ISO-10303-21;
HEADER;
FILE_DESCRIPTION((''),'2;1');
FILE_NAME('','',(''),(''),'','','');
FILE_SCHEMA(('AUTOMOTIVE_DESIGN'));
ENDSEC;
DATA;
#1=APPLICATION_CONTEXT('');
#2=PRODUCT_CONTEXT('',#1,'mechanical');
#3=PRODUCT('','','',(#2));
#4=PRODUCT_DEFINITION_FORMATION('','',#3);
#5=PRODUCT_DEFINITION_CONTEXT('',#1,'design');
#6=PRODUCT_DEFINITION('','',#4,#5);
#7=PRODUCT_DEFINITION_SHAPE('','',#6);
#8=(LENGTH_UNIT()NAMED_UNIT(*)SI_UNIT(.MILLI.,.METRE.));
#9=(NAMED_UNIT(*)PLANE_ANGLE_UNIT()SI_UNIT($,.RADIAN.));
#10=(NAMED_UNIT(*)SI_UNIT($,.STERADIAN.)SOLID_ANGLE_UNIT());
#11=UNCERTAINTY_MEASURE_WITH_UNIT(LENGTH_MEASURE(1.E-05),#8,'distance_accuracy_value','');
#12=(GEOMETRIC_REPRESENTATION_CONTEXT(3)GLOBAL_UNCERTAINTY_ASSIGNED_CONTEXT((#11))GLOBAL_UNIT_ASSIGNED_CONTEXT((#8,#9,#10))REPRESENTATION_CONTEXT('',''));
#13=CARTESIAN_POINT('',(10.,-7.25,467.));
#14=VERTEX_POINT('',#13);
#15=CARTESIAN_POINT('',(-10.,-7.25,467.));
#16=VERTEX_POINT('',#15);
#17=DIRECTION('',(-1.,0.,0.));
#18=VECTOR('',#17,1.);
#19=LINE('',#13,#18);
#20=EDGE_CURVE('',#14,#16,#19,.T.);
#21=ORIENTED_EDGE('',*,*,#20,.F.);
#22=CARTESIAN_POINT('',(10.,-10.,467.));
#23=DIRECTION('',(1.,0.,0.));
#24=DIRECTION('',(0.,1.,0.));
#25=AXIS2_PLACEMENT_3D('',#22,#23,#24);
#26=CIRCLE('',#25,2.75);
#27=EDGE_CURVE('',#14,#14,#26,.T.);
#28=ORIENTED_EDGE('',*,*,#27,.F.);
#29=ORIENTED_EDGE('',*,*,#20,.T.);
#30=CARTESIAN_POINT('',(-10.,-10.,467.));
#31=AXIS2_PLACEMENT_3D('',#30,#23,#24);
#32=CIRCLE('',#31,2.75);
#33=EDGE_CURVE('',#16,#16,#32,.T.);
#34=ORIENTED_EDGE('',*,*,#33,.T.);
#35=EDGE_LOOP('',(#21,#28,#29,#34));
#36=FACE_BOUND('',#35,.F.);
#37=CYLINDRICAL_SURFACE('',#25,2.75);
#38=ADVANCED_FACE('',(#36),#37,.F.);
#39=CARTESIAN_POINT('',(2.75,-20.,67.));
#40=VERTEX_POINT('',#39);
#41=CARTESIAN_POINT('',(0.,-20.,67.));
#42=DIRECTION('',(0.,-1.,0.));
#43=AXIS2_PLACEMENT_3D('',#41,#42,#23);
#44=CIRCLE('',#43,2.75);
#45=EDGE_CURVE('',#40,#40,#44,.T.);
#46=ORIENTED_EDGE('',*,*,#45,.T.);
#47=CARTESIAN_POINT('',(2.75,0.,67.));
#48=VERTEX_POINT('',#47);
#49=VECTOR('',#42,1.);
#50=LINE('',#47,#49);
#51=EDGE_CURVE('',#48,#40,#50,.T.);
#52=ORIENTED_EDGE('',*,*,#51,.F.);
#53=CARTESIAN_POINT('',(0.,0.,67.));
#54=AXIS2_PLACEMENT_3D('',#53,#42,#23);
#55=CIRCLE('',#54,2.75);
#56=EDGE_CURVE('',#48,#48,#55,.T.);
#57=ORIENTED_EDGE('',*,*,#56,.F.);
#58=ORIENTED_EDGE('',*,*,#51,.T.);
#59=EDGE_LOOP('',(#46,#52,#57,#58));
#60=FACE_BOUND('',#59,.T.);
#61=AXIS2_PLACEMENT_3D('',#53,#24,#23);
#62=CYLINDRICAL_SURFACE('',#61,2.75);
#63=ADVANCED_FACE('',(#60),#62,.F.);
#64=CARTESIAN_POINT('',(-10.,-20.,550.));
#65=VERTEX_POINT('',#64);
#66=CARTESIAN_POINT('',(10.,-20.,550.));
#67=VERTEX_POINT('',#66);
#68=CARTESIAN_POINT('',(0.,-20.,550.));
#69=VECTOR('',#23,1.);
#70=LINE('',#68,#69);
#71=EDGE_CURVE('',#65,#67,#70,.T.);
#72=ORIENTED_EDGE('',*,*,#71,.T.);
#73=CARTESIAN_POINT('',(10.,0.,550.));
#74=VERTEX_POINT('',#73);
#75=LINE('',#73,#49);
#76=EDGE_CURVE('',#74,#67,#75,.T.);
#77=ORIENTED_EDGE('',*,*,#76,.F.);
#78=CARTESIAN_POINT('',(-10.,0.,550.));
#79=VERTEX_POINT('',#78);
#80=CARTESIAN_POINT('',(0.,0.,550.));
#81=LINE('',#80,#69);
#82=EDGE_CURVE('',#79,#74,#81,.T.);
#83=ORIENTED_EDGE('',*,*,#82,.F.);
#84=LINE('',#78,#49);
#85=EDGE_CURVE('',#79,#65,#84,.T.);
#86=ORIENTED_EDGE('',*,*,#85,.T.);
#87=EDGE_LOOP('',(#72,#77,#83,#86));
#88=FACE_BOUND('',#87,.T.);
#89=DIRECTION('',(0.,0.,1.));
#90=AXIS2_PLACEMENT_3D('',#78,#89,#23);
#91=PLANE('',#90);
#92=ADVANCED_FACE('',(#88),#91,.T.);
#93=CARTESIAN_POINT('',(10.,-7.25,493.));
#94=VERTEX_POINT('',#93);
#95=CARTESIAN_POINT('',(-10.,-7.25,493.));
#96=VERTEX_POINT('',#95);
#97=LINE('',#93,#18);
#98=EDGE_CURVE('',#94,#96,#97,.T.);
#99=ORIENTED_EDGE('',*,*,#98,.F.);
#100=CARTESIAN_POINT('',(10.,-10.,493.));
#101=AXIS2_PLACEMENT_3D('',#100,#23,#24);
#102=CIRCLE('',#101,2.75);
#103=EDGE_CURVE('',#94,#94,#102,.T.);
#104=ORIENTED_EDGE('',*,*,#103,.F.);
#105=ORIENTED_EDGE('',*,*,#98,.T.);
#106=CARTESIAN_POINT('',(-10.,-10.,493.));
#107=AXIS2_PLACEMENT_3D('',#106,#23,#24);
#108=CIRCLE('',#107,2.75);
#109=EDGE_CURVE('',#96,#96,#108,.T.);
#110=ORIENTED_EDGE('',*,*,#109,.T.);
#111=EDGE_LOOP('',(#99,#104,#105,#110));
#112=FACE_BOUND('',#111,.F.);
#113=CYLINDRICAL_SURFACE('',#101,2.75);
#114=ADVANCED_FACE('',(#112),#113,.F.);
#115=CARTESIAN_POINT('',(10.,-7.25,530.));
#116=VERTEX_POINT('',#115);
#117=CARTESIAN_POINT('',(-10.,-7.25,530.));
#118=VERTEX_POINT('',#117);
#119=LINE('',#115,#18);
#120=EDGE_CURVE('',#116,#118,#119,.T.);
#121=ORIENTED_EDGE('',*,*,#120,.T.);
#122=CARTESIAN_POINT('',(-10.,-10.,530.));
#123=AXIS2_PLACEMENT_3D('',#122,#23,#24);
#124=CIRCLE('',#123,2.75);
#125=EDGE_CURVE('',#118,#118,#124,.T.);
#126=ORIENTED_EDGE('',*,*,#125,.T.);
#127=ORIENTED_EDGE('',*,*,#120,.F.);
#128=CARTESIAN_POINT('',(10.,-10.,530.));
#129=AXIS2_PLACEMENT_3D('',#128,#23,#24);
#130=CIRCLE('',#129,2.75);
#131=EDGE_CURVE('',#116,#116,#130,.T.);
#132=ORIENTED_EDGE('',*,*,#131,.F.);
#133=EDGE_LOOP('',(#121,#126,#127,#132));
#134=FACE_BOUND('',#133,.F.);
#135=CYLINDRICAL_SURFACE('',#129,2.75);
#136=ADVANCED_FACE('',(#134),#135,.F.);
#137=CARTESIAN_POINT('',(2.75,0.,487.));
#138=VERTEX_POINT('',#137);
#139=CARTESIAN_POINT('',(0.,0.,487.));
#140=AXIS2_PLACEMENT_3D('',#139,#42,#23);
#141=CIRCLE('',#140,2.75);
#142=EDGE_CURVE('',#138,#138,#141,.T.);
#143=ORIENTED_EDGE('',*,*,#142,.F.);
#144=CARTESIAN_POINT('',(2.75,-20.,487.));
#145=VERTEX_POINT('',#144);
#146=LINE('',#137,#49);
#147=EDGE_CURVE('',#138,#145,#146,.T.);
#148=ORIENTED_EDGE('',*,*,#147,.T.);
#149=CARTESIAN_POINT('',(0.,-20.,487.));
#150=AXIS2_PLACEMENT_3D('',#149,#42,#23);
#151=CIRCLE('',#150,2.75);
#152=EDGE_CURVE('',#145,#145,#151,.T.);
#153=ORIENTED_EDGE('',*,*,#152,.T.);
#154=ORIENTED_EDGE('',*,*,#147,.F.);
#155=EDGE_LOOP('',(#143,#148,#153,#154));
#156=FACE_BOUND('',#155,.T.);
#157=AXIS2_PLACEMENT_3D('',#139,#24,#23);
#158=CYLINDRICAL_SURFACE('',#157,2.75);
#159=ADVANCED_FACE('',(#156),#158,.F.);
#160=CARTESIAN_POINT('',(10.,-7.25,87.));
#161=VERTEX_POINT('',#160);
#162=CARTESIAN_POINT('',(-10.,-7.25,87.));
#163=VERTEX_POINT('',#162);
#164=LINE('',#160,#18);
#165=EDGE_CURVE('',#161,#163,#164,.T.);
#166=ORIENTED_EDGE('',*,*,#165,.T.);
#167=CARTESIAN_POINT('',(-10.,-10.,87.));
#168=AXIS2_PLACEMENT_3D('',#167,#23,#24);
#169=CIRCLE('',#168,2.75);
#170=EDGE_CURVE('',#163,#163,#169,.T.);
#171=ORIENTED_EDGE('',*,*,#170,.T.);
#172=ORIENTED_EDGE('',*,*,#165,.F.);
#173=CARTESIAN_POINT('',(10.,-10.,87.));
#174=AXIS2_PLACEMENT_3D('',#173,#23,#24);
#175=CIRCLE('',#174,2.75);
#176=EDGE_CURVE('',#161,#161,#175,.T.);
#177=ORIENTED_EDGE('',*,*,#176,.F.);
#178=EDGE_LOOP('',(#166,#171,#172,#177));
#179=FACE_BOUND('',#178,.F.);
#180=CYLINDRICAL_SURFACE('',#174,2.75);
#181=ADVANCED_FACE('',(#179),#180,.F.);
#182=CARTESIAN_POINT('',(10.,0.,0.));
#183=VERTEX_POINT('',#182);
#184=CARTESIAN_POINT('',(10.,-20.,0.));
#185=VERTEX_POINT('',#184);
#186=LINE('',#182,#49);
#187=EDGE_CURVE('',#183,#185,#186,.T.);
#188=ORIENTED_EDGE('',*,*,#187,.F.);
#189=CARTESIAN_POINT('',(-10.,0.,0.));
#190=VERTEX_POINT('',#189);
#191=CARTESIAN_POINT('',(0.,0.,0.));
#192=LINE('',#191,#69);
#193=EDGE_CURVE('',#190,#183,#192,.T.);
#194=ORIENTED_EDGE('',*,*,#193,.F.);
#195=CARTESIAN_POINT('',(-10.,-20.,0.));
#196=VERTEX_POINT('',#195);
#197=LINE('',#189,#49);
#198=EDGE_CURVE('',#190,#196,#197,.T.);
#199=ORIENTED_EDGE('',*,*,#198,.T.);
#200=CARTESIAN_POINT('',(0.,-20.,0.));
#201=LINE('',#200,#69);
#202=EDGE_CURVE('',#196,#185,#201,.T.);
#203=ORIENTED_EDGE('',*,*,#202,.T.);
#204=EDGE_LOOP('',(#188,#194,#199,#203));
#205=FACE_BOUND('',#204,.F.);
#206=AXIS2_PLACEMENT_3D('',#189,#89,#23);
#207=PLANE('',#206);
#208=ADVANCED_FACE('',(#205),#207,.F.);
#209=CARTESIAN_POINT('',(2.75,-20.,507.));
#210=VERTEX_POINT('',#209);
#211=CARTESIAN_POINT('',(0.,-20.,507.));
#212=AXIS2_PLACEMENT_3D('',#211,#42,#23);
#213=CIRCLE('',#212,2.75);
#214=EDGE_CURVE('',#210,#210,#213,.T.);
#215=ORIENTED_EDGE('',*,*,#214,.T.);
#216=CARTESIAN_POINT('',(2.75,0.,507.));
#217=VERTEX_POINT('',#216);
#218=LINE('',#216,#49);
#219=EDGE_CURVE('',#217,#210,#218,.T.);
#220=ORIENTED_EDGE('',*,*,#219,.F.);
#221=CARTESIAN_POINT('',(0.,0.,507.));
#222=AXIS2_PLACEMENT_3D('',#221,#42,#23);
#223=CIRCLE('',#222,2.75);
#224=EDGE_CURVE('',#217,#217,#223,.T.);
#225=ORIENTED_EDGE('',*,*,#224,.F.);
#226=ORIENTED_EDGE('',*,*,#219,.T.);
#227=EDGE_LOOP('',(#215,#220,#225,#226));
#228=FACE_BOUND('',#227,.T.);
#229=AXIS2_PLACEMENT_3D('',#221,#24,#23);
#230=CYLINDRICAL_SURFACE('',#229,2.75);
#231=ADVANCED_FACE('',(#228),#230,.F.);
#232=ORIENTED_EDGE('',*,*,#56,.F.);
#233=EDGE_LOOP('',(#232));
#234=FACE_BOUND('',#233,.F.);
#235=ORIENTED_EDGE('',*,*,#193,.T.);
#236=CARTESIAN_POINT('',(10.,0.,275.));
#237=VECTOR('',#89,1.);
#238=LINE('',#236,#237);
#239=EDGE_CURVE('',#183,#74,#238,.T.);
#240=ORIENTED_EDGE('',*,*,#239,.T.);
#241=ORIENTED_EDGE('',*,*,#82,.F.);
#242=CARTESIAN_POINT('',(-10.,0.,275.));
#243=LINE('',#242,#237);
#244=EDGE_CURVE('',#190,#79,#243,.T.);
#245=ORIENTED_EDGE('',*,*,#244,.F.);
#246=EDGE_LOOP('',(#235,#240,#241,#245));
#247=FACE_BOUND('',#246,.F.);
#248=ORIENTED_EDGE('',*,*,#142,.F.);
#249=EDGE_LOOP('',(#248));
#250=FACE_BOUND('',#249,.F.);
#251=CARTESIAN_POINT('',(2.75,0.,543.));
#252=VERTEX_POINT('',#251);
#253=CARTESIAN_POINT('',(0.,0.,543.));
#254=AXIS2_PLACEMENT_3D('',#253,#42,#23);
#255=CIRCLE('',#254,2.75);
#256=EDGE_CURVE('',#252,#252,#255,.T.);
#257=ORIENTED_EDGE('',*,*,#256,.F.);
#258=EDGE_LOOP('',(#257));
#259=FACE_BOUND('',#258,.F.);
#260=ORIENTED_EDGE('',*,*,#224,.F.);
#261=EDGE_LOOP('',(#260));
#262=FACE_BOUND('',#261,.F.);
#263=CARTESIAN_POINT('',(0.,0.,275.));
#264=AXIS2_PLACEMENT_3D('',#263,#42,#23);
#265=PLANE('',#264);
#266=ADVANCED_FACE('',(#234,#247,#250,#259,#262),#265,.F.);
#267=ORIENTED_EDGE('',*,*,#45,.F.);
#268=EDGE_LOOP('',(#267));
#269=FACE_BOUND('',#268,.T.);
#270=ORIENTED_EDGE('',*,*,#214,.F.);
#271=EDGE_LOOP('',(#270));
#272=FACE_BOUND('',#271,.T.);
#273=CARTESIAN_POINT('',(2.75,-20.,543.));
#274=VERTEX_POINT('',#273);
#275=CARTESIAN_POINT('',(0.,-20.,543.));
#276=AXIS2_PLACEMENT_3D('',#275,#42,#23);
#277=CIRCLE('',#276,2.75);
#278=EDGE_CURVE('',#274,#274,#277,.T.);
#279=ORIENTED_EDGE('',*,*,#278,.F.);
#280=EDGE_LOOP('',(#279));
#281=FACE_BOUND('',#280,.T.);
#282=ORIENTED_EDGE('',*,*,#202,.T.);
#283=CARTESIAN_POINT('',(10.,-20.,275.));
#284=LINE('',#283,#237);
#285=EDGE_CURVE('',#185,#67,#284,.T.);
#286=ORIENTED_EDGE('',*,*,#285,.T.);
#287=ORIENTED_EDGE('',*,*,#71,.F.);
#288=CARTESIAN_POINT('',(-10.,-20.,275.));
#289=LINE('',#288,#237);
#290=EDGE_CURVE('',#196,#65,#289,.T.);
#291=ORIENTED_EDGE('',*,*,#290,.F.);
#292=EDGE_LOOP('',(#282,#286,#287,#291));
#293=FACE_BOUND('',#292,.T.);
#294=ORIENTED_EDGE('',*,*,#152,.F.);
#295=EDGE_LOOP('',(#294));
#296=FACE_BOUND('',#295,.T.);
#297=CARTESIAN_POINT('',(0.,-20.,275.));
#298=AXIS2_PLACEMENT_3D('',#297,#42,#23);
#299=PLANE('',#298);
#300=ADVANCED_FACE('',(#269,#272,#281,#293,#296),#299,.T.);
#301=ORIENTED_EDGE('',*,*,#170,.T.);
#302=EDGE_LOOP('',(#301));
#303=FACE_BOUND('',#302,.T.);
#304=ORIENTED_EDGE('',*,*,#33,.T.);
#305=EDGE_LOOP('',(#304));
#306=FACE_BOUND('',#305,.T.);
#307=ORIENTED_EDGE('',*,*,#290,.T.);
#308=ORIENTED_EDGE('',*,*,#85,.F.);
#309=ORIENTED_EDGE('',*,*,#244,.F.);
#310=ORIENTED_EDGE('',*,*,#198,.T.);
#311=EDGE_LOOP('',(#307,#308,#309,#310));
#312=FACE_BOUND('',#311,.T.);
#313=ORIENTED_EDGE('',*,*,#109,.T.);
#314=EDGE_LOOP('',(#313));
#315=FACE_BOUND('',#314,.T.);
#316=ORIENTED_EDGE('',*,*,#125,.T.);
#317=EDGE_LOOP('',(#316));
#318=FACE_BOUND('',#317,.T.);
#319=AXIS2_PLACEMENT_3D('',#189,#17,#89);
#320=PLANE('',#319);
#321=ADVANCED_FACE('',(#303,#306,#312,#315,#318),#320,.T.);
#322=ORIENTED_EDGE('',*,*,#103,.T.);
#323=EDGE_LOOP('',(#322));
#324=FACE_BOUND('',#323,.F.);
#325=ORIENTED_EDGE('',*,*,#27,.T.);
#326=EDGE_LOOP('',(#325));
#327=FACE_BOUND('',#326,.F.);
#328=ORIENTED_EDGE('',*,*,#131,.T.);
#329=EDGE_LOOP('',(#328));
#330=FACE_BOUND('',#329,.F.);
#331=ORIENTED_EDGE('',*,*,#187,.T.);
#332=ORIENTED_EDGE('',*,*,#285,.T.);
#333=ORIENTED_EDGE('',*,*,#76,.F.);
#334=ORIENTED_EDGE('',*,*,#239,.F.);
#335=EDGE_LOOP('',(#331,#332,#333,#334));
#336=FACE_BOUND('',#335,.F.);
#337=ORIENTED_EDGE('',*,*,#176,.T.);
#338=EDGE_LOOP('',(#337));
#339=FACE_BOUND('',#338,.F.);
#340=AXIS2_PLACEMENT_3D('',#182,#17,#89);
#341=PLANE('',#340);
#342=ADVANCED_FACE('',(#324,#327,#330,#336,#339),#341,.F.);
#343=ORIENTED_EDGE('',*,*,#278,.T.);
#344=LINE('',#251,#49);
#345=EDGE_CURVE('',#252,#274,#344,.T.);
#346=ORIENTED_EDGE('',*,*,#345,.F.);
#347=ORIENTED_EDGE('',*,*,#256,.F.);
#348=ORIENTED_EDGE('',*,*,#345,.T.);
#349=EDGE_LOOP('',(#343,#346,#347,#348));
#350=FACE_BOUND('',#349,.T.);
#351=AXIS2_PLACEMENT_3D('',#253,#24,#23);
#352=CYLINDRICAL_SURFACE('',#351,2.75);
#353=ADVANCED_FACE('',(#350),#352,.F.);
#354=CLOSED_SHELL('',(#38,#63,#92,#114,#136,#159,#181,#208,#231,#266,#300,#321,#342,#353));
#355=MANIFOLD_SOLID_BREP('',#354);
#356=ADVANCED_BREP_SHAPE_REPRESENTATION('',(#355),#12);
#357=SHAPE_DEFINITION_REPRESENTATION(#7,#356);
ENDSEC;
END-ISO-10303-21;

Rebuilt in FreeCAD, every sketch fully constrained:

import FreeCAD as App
import Part
import Sketcher

V = App.Vector
Q = App.Units.Quantity

doc = App.newDocument("Part")
params = doc.addObject("Spreadsheet::Sheet", "Params")
for row, (alias, value) in enumerate([
    ("sketch1_diameter", "5.5 mm"),
    ("sketch1_width", "20 mm"),
    ("sketch1_height", "550 mm"),
    ("pad1_length", "20 mm"),
    ("sketch2_diameter", "5.5 mm"),
    ("pocket1_length", "20 mm"),
], start=1):
    params.set(f"A{row}", alias)
    params.set(f"B{row}", "=" + value)
    params.setAlias(f"B{row}", alias)

body = doc.addObject("PartDesign::Body", "Body")

# Sketch on XZ plane
sketch1 = body.newObject("Sketcher::SketchObject", "Sketch")
sketch1.AttachmentSupport = (doc.getObject("XZ_Plane"), [""])
sketch1.MapMode = "FlatFace"
sketch1.addGeometry([
    Part.LineSegment(V(-10, 550, 0), V(-10, 0, 0)),  # 0
    Part.LineSegment(V(-10, 0, 0), V(10, 0, 0)),  # 1
    Part.LineSegment(V(10, 0, 0), V(10, 550, 0)),  # 2
    Part.LineSegment(V(10, 550, 0), V(-10, 550, 0)),  # 3
    Part.Circle(V(0, 67, 0), V(0, 0, 1), 2.75),  # 4
    Part.Circle(V(0, 487, 0), V(0, 0, 1), 2.75),  # 5
    Part.Circle(V(0, 507, 0), V(0, 0, 1), 2.75),  # 6
    Part.Circle(V(0, 543, 0), V(0, 0, 1), 2.75),  # 7
], False)
sketch1.addConstraint([
    Sketcher.Constraint("Coincident", 0, 2, 1, 1),
    Sketcher.Constraint("Coincident", 1, 2, 2, 1),
    Sketcher.Constraint("Coincident", 2, 2, 3, 1),
    Sketcher.Constraint("Coincident", 3, 2, 0, 1),
    Sketcher.Constraint("Vertical", 0),
    Sketcher.Constraint("Horizontal", 1),
    Sketcher.Constraint("Vertical", 2),
    Sketcher.Constraint("Horizontal", 3),
    Sketcher.Constraint("Equal", 4, 5),
    Sketcher.Constraint("Equal", 5, 6),
    Sketcher.Constraint("Equal", 6, 7),
    Sketcher.Constraint("Symmetric", 0, 2, 1, 2, -1, 1),
    Sketcher.Constraint("PointOnObject", 4, 3, -2),
    Sketcher.Constraint("PointOnObject", 5, 3, -2),
    Sketcher.Constraint("PointOnObject", 6, 3, -2),
    Sketcher.Constraint("PointOnObject", 7, 3, -2),
    Sketcher.Constraint("Diameter", 4, Q("5.5 mm")),
    Sketcher.Constraint("DistanceX", 1, 1, 1, 2, Q("20 mm")),
    Sketcher.Constraint("DistanceY", 0, 2, 0, 1, Q("550 mm")),
    Sketcher.Constraint("DistanceY", -1, 1, 4, 3, Q("67 mm")),
    Sketcher.Constraint("DistanceY", -1, 1, 5, 3, Q("487 mm")),
    Sketcher.Constraint("DistanceY", -1, 1, 6, 3, Q("507 mm")),
    Sketcher.Constraint("DistanceY", -1, 1, 7, 3, Q("543 mm")),
])
sketch1.setExpression("Constraints[16]", "Params.sketch1_diameter")
sketch1.setExpression("Constraints[17]", "Params.sketch1_width")
sketch1.setExpression("Constraints[18]", "Params.sketch1_height")
pad1 = body.newObject("PartDesign::Pad", "Pad")
pad1.Profile = sketch1
pad1.setExpression("Length", "Params.pad1_length")

# Sketch on YZ plane
sketch2 = body.newObject("Sketcher::SketchObject", "Sketch001")
sketch2.AttachmentSupport = (doc.getObject("YZ_Plane"), [""])
sketch2.MapMode = "FlatFace"
sketch2.AttachmentOffset = App.Placement(V(0, 0, 10), App.Rotation())
sketch2.addGeometry([
    Part.Circle(V(-10, 530, 0), V(0, 0, 1), 2.75),
    Part.Circle(V(-10, 493, 0), V(0, 0, 1), 2.75),
    Part.Circle(V(-10, 467, 0), V(0, 0, 1), 2.75),
    Part.Circle(V(-10, 87, 0), V(0, 0, 1), 2.75),
], False)
sketch2.addConstraint([
    Sketcher.Constraint("Equal", 0, 1),
    Sketcher.Constraint("Equal", 1, 2),
    Sketcher.Constraint("Equal", 2, 3),
    Sketcher.Constraint("Vertical", 0, 3, 1, 3),
    Sketcher.Constraint("Vertical", 1, 3, 2, 3),
    Sketcher.Constraint("Vertical", 2, 3, 3, 3),
    Sketcher.Constraint("Diameter", 0, Q("5.5 mm")),
    Sketcher.Constraint("DistanceX", 0, 3, -1, 1, Q("10 mm")),
    Sketcher.Constraint("DistanceY", -1, 1, 0, 3, Q("530 mm")),
    Sketcher.Constraint("DistanceY", -1, 1, 1, 3, Q("493 mm")),
    Sketcher.Constraint("DistanceY", -1, 1, 2, 3, Q("467 mm")),
    Sketcher.Constraint("DistanceY", -1, 1, 3, 3, Q("87 mm")),
])
sketch2.setExpression("Constraints[6]", "Params.sketch2_diameter")
pocket1 = body.newObject("PartDesign::Pocket", "Pocket")
pocket1.Profile = sketch2
pocket1.setExpression("Length", "Params.pocket1_length")

doc.recompute()
